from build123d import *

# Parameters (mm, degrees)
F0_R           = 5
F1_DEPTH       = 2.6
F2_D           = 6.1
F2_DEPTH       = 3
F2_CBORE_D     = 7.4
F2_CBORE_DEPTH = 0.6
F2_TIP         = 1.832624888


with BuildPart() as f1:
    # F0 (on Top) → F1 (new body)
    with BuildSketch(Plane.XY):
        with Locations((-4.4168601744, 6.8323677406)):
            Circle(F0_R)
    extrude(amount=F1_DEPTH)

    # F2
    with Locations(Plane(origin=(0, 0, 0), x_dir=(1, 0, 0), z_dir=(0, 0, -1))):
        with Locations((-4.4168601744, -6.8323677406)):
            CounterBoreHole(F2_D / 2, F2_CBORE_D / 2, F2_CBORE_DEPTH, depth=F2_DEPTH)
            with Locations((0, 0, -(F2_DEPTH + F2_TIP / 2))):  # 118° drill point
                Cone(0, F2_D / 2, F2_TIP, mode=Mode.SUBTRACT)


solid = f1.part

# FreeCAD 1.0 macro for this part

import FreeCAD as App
import Part
import Sketcher

doc = App.newDocument("Part")
body = doc.addObject("PartDesign::Body", "Body")

sketch1 = doc.addObject("Sketcher::SketchObject", "Sketch")
body.addObject(sketch1)
sketch1.AttachmentSupport = (doc.XY_Plane, [""])
sketch1.MapMode = "FlatFace"
sketch1.addGeometry(Part.Circle(App.Vector(-4.41686, 6.832368, 0), App.Vector(0, 0, 1), 5), False)
sketch1.addConstraint([
    Sketcher.Constraint("Diameter", 0, 10.0),
    Sketcher.Constraint("DistanceX", 0, 3, -1, 1, 4.41686),
    Sketcher.Constraint("DistanceY", -1, 1, 0, 3, 6.832368),
])
pad1 = doc.addObject("PartDesign::Pad", "Pad")
body.addObject(pad1)
pad1.Profile = sketch1
pad1.Length = 2.6

sketch2 = doc.addObject("Sketcher::SketchObject", "Sketch001")
body.addObject(sketch2)
sketch2.AttachmentSupport = (doc.XY_Plane, [""])
sketch2.MapMode = "FlatFace"
sketch2.addGeometry(Part.Circle(App.Vector(-4.41686, 6.832368, 0), App.Vector(0, 0, 1), 3.05), False)
sketch2.addConstraint([
    Sketcher.Constraint("Diameter", 0, 6.1),
    Sketcher.Constraint("DistanceX", 0, 3, -1, 1, 4.41686),
    Sketcher.Constraint("DistanceY", -1, 1, 0, 3, 6.832368),
])
doc.recompute()
hole = doc.addObject("PartDesign::Hole", "Hole")
body.addObject(hole)
hole.Profile = sketch2
hole.ThreadType = "None"
hole.Diameter = 6.1
hole.DepthType = "Dimension"
hole.Depth = 3
hole.DrillPoint = "Angled"
hole.DrillPointAngle = 118
hole.HoleCutType = "Counterbore"
hole.HoleCutDiameter = 7.4
hole.HoleCutDepth = 0.6
hole.Reversed = True

doc.recompute()
